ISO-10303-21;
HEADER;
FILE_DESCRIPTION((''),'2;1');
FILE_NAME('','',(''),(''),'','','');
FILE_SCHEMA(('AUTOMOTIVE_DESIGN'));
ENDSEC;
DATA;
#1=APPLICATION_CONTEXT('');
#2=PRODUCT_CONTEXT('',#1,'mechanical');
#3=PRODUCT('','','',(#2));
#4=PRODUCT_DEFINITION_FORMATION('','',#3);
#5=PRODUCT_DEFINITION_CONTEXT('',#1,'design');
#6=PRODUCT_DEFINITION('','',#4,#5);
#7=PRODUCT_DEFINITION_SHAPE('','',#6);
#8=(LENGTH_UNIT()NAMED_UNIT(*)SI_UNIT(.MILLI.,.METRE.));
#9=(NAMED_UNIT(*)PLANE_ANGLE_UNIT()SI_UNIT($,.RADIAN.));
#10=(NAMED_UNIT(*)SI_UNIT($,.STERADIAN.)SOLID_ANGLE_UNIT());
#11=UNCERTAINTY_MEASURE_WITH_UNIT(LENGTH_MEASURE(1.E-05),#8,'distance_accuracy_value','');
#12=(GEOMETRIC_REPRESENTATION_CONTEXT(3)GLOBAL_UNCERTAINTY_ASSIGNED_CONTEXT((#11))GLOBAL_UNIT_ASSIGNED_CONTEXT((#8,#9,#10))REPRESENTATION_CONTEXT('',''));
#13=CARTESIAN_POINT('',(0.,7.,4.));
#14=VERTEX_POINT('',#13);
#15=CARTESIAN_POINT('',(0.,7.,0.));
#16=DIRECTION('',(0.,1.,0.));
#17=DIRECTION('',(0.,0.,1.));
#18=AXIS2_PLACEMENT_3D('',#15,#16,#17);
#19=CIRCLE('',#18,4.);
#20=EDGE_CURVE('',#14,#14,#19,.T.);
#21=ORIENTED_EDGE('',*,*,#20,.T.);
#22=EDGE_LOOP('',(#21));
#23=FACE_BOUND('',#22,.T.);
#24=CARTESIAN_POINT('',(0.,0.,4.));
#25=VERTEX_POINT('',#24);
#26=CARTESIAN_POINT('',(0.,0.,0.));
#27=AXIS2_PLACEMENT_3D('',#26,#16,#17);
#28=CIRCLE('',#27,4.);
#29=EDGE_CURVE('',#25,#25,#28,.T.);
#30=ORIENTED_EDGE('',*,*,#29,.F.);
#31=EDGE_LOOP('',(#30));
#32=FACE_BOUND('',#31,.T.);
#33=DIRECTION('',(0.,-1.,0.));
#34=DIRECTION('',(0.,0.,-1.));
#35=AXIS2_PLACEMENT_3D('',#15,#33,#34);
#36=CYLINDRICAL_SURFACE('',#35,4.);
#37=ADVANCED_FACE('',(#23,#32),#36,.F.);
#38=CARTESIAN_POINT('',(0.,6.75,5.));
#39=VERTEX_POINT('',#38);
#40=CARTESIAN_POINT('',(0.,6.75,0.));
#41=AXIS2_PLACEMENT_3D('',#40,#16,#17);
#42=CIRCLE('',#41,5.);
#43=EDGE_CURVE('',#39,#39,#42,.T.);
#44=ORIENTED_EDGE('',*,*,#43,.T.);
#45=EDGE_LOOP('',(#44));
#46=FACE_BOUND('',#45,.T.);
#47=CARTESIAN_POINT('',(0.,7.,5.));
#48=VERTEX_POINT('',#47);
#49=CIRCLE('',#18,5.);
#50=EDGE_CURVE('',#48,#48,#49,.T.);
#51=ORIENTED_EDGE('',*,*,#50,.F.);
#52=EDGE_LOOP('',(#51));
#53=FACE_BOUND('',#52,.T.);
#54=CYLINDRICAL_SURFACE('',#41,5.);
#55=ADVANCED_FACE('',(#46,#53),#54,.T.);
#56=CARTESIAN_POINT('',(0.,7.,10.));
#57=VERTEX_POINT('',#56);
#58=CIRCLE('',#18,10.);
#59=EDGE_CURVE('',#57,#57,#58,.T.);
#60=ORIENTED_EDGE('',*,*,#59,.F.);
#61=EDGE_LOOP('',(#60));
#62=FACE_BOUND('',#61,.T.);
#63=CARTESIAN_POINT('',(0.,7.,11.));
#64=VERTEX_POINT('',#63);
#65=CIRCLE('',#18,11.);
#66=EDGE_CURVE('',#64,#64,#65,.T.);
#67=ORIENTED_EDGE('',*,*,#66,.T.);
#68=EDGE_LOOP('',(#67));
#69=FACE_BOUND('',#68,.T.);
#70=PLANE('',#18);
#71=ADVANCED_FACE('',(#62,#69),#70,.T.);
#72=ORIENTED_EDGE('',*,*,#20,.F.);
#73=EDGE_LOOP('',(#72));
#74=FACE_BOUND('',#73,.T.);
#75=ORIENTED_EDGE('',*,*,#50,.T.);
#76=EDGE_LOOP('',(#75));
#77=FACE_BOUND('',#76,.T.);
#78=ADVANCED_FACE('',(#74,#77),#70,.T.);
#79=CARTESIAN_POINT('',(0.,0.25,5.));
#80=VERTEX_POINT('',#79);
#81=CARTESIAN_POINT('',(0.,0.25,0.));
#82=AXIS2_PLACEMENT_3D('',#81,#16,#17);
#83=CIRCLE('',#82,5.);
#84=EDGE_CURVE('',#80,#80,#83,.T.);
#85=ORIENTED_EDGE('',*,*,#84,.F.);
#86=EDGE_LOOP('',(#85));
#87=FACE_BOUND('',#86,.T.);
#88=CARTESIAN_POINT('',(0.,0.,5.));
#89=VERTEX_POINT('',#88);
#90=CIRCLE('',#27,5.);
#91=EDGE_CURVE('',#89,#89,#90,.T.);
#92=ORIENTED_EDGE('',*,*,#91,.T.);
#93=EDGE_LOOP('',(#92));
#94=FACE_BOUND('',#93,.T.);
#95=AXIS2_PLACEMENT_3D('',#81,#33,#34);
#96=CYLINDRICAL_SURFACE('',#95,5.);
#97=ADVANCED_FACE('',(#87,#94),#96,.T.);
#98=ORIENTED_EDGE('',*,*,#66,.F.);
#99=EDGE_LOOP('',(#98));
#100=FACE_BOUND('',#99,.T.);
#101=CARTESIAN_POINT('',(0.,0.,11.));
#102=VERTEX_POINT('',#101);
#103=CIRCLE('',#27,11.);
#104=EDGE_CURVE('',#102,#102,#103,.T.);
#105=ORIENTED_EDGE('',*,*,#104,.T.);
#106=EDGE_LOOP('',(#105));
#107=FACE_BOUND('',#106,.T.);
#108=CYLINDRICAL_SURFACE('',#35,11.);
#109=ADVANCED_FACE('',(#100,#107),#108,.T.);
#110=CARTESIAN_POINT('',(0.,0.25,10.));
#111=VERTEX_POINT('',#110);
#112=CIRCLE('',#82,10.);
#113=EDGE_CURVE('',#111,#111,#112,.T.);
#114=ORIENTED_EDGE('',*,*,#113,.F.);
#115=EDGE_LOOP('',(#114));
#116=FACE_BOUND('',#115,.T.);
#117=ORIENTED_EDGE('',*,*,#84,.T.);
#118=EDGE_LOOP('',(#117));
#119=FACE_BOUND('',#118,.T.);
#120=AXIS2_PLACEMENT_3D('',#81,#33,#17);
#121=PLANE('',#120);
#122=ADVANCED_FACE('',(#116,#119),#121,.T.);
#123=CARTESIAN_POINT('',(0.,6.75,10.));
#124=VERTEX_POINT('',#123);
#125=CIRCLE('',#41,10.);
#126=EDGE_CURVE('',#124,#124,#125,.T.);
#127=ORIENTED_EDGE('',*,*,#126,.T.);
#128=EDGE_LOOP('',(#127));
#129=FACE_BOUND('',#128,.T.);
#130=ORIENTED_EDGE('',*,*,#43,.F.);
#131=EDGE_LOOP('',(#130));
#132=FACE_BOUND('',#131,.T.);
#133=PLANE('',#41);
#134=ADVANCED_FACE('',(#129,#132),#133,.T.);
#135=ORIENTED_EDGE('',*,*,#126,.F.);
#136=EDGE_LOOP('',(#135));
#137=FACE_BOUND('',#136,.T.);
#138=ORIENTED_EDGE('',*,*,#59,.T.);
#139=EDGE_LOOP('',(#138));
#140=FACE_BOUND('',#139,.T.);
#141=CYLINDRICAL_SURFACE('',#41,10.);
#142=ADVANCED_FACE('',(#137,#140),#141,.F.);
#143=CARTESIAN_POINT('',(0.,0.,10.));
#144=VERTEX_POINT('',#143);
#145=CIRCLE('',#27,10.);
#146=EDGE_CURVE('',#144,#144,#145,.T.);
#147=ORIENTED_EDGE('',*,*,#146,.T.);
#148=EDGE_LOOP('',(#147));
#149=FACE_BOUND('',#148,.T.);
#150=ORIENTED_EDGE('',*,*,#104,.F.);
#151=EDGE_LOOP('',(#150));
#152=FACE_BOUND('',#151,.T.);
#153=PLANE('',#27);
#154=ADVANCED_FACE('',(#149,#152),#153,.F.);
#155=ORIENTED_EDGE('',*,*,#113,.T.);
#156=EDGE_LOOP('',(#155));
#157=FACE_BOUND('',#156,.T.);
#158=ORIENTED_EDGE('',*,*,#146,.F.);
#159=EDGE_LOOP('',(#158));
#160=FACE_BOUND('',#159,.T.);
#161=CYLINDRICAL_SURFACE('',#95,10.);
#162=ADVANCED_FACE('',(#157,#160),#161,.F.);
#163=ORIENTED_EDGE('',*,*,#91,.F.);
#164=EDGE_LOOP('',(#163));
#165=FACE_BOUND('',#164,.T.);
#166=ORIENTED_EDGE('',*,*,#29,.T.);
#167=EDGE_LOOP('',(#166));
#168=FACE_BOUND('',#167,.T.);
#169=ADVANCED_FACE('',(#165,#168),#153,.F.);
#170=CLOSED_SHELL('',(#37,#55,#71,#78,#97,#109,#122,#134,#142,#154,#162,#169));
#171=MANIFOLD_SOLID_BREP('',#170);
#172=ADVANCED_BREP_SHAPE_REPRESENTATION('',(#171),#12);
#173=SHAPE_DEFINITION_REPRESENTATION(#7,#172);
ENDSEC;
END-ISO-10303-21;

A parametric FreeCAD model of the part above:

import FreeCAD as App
import Part
import Sketcher
Q = App.Units.Quantity

doc = App.newDocument("Part")
body = doc.addObject("PartDesign::Body", "Body")

# Sketch on XZ plane
sketch1 = body.newObject("Sketcher::SketchObject", "Sketch")
sketch1.AttachmentSupport = (doc.getObject("XZ_Plane"), [""])
sketch1.MapMode = "FlatFace"
sketch1.addGeometry([
    Part.Circle(App.Vector(0, 0, 0), App.Vector(0, 0, 1), 11),
    Part.Circle(App.Vector(0, 0, 0), App.Vector(0, 0, 1), 4),
], False)
sketch1.addConstraint([
    Sketcher.Constraint("Coincident", 0, 3, -1, 1),
    Sketcher.Constraint("Coincident", 1, 3, -1, 1),
    Sketcher.Constraint("Diameter", 0, Q("22 mm")),
    Sketcher.Constraint("Diameter", 1, Q("8 mm")),
])
pad1 = body.newObject("PartDesign::Pad", "Pad")
pad1.Profile = sketch1
pad1.Length = 7
pad1.Reversed = True

# Sketch on XZ plane
sketch2 = body.newObject("Sketcher::SketchObject", "Sketch001")
sketch2.AttachmentSupport = (doc.getObject("XZ_Plane"), [""])
sketch2.MapMode = "FlatFace"
sketch2.AttachmentOffset = App.Placement(App.Vector(0, 0, -7), App.Rotation())
sketch2.addGeometry([
    Part.Circle(App.Vector(0, 0, 0), App.Vector(0, 0, 1), 10),
    Part.Circle(App.Vector(0, 0, 0), App.Vector(0, 0, 1), 5),
], False)
sketch2.addConstraint([
    Sketcher.Constraint("Coincident", 0, 3, -1, 1),
    Sketcher.Constraint("Coincident", 1, 3, -1, 1),
    Sketcher.Constraint("Diameter", 0, Q("20 mm")),
    Sketcher.Constraint("Diameter", 1, Q("10 mm")),
])
pocket1 = body.newObject("PartDesign::Pocket", "Pocket")
pocket1.Profile = sketch2
pocket1.Length = 0.25
pocket1.Reversed = True
doc.recompute()

datumplane = body.newObject("PartDesign::Plane", "DatumPlane")
datumplane.AttachmentSupport = (doc.getObject("XZ_Plane"), [""])
datumplane.MapMode = "FlatFace"
datumplane.AttachmentOffset = App.Placement(App.Vector(0, 0, -3.5), App.Rotation())
mirrored = body.newObject("PartDesign::Mirrored", "Mirrored")
mirrored.Originals = [pocket1]
mirrored.MirrorPlane = (datumplane, [""])
body.Tip = mirrored

doc.recompute()
